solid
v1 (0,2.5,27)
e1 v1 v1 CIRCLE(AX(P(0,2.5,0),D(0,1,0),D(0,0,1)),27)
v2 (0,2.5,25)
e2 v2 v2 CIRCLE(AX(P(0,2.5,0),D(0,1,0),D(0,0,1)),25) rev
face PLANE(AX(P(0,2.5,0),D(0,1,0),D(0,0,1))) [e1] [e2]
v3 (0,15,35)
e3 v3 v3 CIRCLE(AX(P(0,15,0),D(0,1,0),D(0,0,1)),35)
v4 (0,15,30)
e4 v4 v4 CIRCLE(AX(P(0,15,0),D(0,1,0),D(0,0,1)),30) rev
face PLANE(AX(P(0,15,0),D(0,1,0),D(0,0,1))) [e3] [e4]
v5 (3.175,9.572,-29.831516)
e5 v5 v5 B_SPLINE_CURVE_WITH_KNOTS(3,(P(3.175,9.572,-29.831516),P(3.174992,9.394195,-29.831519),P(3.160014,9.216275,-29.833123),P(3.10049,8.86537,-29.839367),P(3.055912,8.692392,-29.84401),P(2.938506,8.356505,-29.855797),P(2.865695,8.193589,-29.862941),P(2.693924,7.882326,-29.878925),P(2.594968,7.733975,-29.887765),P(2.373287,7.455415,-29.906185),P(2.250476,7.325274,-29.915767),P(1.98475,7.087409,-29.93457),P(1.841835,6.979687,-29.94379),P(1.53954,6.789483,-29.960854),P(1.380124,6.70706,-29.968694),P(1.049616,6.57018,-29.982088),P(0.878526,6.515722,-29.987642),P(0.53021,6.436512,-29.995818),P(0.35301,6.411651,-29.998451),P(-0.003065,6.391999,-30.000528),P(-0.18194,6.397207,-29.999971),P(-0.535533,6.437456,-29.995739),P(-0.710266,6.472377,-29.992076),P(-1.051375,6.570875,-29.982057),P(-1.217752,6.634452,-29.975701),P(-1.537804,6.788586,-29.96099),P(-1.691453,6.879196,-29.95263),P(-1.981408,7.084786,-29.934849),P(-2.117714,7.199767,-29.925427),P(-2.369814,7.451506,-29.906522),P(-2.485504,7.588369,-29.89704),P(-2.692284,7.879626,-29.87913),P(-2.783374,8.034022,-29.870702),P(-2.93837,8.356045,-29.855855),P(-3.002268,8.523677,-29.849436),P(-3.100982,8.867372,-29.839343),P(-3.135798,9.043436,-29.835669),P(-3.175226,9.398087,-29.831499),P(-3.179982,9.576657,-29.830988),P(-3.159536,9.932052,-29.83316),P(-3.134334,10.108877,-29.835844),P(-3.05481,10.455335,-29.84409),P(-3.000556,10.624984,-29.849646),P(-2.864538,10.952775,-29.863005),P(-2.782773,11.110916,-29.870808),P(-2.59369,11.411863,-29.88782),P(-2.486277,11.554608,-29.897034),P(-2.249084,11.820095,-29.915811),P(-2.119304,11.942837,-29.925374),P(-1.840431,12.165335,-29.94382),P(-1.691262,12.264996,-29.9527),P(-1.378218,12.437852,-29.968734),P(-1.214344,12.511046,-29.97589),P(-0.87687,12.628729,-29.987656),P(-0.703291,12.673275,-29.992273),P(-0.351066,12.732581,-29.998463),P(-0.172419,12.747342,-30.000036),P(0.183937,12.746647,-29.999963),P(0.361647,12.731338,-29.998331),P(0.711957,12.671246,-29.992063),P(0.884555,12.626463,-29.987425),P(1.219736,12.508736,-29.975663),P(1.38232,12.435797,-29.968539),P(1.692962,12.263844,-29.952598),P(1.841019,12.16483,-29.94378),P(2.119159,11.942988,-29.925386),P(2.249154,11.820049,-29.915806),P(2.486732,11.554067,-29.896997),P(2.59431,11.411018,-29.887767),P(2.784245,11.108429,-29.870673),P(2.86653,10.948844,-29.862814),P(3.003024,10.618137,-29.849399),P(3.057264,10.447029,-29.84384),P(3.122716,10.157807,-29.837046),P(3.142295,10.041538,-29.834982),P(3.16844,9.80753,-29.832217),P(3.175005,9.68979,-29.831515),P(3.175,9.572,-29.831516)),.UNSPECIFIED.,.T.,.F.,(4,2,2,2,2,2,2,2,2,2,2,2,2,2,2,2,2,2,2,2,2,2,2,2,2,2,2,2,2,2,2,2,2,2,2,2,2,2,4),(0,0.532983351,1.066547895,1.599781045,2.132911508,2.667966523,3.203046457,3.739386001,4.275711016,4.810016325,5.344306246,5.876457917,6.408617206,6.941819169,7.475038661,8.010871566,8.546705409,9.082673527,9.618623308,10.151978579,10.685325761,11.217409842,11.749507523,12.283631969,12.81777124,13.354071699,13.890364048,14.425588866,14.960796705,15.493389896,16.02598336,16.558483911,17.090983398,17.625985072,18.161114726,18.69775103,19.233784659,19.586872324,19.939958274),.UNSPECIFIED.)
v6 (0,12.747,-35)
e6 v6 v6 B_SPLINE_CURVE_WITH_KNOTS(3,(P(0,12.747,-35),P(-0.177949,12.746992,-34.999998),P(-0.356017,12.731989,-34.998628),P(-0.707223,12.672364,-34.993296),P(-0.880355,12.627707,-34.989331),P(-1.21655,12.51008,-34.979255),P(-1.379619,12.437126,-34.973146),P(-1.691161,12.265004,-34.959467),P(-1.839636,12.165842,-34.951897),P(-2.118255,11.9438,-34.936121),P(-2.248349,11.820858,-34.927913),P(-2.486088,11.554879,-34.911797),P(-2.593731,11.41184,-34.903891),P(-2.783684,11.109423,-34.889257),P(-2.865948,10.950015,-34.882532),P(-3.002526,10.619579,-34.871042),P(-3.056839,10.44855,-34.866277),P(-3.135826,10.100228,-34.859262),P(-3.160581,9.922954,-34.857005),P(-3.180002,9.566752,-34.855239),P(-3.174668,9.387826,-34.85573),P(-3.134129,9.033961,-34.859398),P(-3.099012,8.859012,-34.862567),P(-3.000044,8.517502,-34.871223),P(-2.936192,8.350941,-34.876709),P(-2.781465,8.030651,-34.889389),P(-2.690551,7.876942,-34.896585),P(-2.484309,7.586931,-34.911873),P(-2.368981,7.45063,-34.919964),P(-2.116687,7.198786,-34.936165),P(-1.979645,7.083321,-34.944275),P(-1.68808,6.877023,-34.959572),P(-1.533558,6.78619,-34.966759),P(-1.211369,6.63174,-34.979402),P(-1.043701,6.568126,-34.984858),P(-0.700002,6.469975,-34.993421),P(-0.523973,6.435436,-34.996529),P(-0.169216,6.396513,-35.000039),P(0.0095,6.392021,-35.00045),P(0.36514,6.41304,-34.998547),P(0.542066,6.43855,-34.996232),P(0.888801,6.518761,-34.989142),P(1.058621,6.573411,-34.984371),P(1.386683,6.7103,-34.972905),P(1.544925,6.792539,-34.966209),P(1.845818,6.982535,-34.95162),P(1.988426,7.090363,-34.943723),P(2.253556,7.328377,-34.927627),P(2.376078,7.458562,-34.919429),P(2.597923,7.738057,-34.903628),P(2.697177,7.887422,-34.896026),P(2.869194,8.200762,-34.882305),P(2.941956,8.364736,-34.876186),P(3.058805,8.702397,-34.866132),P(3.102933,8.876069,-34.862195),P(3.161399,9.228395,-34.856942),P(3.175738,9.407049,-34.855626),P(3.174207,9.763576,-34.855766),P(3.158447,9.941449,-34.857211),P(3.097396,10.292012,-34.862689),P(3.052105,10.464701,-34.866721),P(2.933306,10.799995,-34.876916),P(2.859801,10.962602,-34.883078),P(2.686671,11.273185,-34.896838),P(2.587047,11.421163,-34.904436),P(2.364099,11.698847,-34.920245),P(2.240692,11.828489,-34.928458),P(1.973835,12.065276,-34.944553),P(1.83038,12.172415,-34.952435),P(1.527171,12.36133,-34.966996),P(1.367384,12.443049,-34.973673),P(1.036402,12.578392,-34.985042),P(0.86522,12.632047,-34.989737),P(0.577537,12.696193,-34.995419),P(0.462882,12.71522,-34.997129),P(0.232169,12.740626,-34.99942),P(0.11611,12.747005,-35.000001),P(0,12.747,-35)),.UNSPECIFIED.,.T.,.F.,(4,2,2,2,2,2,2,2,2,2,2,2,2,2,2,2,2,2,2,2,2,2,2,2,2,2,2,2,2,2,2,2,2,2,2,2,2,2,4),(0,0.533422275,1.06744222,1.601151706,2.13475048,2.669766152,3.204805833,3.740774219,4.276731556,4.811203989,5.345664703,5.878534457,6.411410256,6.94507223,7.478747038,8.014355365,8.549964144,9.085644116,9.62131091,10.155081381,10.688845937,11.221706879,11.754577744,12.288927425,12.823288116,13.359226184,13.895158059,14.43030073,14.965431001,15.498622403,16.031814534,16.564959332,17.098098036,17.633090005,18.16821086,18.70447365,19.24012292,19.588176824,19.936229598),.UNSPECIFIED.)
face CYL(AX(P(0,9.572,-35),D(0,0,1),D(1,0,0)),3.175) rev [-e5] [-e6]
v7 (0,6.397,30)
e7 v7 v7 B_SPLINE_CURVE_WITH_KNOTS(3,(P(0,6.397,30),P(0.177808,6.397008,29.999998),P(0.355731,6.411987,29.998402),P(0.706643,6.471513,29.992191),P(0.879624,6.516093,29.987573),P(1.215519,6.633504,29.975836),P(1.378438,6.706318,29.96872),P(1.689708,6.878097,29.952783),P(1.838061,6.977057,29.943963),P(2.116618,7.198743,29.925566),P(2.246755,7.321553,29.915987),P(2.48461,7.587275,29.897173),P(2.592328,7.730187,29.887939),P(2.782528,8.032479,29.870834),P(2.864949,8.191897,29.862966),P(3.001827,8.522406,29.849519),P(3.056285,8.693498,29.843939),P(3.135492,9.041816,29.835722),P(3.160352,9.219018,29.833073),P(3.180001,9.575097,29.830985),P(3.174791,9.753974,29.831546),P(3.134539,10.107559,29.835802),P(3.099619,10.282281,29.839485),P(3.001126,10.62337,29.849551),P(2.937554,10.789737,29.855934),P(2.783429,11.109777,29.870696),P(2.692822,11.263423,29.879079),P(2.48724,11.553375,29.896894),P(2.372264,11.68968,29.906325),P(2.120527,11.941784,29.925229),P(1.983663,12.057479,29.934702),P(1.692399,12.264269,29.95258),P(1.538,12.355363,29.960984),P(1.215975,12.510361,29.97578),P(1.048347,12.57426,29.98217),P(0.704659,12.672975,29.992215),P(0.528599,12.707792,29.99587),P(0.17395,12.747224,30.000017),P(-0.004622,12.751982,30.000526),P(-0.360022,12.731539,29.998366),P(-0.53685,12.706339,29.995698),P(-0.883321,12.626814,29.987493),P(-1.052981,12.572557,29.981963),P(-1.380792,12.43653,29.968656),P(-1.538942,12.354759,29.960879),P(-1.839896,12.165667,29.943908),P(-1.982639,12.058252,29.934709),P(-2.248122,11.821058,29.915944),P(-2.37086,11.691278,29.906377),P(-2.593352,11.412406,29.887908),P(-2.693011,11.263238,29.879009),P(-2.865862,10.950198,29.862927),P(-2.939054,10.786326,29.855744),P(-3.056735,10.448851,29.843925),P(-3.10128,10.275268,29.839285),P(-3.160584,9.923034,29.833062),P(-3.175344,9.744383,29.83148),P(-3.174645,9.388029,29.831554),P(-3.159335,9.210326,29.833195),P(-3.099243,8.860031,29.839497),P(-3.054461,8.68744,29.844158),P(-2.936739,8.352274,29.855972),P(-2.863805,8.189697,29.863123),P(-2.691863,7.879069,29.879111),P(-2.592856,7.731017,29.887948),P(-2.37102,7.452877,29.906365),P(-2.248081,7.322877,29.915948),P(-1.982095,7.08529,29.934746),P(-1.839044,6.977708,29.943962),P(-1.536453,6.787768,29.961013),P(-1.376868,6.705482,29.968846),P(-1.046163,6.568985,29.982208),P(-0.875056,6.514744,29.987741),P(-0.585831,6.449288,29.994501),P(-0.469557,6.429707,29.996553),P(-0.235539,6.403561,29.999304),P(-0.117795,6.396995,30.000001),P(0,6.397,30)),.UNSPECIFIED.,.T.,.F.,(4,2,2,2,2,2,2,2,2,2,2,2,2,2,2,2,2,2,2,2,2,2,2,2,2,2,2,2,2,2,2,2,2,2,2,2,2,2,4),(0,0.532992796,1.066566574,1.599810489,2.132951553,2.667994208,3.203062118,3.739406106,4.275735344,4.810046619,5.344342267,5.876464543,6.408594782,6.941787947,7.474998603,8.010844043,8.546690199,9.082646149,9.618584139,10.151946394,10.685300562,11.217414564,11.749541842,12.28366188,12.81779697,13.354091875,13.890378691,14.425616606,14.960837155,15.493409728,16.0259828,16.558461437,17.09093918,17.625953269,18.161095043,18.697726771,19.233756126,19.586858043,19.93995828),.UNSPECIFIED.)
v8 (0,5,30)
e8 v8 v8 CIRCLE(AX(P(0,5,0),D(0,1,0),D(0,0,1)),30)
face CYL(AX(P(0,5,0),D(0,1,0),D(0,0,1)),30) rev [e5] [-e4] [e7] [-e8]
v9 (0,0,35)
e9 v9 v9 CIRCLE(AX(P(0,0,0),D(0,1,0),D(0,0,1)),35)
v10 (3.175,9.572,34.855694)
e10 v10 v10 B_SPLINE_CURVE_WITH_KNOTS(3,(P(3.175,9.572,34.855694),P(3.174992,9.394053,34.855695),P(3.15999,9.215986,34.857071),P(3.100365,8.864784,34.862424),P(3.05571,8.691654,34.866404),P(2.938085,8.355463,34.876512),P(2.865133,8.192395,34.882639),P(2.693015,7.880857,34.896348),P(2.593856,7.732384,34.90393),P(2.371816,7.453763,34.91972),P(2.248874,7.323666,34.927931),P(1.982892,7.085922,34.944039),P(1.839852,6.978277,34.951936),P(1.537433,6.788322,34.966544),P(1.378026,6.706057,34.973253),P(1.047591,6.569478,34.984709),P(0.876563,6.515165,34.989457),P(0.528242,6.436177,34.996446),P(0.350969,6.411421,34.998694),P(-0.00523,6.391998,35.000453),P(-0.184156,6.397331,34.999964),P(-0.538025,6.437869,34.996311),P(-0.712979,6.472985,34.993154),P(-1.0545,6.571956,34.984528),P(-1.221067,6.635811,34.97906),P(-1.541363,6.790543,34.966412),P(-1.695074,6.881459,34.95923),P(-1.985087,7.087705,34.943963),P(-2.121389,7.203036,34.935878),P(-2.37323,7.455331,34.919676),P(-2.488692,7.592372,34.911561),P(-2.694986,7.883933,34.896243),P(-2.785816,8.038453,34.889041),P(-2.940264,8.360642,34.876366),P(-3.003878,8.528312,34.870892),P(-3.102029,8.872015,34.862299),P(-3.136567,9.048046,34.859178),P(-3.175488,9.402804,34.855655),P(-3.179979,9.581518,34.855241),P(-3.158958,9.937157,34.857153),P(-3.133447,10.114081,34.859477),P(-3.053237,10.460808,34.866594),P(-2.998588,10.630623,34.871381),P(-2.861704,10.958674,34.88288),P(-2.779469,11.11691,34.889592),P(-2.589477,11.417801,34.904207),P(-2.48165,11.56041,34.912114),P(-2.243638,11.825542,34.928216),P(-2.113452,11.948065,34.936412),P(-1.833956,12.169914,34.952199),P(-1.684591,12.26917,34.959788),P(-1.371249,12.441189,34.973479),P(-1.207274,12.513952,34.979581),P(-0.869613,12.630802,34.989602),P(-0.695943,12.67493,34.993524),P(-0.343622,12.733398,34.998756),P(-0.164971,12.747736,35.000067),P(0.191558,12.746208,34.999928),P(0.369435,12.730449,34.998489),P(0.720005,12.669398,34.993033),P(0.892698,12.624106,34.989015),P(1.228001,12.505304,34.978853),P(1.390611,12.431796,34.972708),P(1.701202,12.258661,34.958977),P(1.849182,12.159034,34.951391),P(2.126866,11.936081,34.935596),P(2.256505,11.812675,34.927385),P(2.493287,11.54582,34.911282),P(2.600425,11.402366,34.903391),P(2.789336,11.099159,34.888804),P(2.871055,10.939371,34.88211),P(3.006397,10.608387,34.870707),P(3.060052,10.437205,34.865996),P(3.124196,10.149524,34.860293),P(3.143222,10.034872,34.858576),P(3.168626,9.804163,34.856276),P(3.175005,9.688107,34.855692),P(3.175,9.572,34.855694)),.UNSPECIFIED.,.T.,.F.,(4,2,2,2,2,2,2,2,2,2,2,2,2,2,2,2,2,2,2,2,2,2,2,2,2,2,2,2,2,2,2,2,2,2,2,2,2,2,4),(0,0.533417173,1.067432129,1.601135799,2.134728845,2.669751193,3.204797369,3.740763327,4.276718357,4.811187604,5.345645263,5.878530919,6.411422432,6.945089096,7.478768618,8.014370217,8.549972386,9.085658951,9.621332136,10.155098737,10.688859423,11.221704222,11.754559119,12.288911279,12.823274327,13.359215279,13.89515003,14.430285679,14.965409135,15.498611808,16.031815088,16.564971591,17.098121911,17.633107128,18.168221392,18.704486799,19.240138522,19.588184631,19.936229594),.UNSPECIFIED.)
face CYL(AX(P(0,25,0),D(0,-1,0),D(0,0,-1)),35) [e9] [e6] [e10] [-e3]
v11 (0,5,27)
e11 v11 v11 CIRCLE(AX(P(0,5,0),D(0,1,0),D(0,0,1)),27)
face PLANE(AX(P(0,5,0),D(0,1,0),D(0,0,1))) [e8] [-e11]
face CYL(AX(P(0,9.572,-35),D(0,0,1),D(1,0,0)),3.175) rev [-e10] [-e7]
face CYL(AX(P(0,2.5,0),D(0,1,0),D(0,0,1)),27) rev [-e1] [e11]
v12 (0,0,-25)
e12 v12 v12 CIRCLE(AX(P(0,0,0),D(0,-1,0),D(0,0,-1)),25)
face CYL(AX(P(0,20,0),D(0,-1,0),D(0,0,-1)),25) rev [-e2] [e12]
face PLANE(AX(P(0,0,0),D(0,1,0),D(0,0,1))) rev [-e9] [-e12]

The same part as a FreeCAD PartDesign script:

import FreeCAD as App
import Part
import Sketcher
Q = App.Units.Quantity

doc = App.newDocument("Part")
body = doc.addObject("PartDesign::Body", "Body")

sketch1 = doc.addObject("Sketcher::SketchObject", "Sketch")
body.addObject(sketch1)
sketch1.AttachmentSupport = (doc.XZ_Plane, [""])
sketch1.MapMode = "FlatFace"
sketch1.addGeometry(Part.Circle(App.Vector(0, 0, 0), App.Vector(0, 0, 1), 35), False)
sketch1.addConstraint(Sketcher.Constraint("Coincident", 0, 3, -1, 1))
sketch1.addConstraint(Sketcher.Constraint("Diameter", 0, Q("70 mm")))
pad1 = doc.addObject("PartDesign::Pad", "Pad")
body.addObject(pad1)
pad1.Profile = sketch1
pad1.Length = 25
pad1.Reversed = True

sketch2 = doc.addObject("Sketcher::SketchObject", "Sketch001")
body.addObject(sketch2)
sketch2.AttachmentSupport = (doc.XZ_Plane, [""])
sketch2.MapMode = "FlatFace"
sketch2.AttachmentOffset = App.Placement(App.Vector(0, 0, -25), App.Rotation())
sketch2.addGeometry(Part.Circle(App.Vector(0, 0, 0), App.Vector(0, 0, 1), 30), False)
sketch2.addConstraint(Sketcher.Constraint("Coincident", 0, 3, -1, 1))
sketch2.addConstraint(Sketcher.Constraint("Diameter", 0, Q("60 mm")))
pocket1 = doc.addObject("PartDesign::Pocket", "Pocket")
body.addObject(pocket1)
pocket1.Profile = sketch2
pocket1.Length = 20
pocket1.Reversed = True

sketch3 = doc.addObject("Sketcher::SketchObject", "Sketch002")
body.addObject(sketch3)
sketch3.AttachmentSupport = (doc.XZ_Plane, [""])
sketch3.MapMode = "FlatFace"
sketch3.addGeometry(Part.Circle(App.Vector(0, 0, 0), App.Vector(0, 0, 1), 25), False)
sketch3.addConstraint(Sketcher.Constraint("Coincident", 0, 3, -1, 1))
sketch3.addConstraint(Sketcher.Constraint("Diameter", 0, Q("50 mm")))
pocket2 = doc.addObject("PartDesign::Pocket", "Pocket001")
body.addObject(pocket2)
pocket2.Profile = sketch3
pocket2.Length = 20

sketch4 = doc.addObject("Sketcher::SketchObject", "Sketch003")
body.addObject(sketch4)
sketch4.AttachmentSupport = (doc.XZ_Plane, [""])
sketch4.MapMode = "FlatFace"
sketch4.AttachmentOffset = App.Placement(App.Vector(0, 0, -5), App.Rotation())
sketch4.addGeometry(Part.Circle(App.Vector(0, 0, 0), App.Vector(0, 0, 1), 27), False)
sketch4.addConstraint(Sketcher.Constraint("Coincident", 0, 3, -1, 1))
sketch4.addConstraint(Sketcher.Constraint("Diameter", 0, Q("54 mm")))
pocket3 = doc.addObject("PartDesign::Pocket", "Pocket002")
body.addObject(pocket3)
pocket3.Profile = sketch4
pocket3.Length = 2.5
pocket3.Reversed = True

sketch5 = doc.addObject("Sketcher::SketchObject", "Sketch004")
body.addObject(sketch5)
sketch5.AttachmentSupport = (doc.XZ_Plane, [""])
sketch5.MapMode = "FlatFace"
sketch5.AttachmentOffset = App.Placement(App.Vector(0, 0, -25), App.Rotation())
sketch5.addGeometry(Part.Circle(App.Vector(0, 0, 0), App.Vector(0, 0, 1), 56), False)
sketch5.addConstraint(Sketcher.Constraint("Coincident", 0, 3, -1, 1))
sketch5.addConstraint(Sketcher.Constraint("Diameter", 0, Q("111.820374 mm")))
pocket4 = doc.addObject("PartDesign::Pocket", "Pocket003")
body.addObject(pocket4)
pocket4.Profile = sketch5
pocket4.Length = 10
pocket4.Reversed = True

sketch6 = doc.addObject("Sketcher::SketchObject", "Sketch005")
body.addObject(sketch6)
sketch6.AttachmentSupport = (doc.XY_Plane, [""])
sketch6.MapMode = "FlatFace"
sketch6.addGeometry(Part.Circle(App.Vector(0, 9.6, 0), App.Vector(0, 0, 1), 3.2), False)
sketch6.addConstraint(Sketcher.Constraint("PointOnObject", 0, 3, -2))
sketch6.addConstraint(Sketcher.Constraint("Diameter", 0, Q("6.35 mm")))
sketch6.addConstraint(Sketcher.Constraint("DistanceY", -1, 1, 0, 3, Q("9.572 mm")))
pocket5 = doc.addObject("PartDesign::Pocket", "Pocket004")
body.addObject(pocket5)
pocket5.Profile = sketch6
pocket5.Type = "ThroughAll"
pocket5.Midplane = True

doc.recompute()
